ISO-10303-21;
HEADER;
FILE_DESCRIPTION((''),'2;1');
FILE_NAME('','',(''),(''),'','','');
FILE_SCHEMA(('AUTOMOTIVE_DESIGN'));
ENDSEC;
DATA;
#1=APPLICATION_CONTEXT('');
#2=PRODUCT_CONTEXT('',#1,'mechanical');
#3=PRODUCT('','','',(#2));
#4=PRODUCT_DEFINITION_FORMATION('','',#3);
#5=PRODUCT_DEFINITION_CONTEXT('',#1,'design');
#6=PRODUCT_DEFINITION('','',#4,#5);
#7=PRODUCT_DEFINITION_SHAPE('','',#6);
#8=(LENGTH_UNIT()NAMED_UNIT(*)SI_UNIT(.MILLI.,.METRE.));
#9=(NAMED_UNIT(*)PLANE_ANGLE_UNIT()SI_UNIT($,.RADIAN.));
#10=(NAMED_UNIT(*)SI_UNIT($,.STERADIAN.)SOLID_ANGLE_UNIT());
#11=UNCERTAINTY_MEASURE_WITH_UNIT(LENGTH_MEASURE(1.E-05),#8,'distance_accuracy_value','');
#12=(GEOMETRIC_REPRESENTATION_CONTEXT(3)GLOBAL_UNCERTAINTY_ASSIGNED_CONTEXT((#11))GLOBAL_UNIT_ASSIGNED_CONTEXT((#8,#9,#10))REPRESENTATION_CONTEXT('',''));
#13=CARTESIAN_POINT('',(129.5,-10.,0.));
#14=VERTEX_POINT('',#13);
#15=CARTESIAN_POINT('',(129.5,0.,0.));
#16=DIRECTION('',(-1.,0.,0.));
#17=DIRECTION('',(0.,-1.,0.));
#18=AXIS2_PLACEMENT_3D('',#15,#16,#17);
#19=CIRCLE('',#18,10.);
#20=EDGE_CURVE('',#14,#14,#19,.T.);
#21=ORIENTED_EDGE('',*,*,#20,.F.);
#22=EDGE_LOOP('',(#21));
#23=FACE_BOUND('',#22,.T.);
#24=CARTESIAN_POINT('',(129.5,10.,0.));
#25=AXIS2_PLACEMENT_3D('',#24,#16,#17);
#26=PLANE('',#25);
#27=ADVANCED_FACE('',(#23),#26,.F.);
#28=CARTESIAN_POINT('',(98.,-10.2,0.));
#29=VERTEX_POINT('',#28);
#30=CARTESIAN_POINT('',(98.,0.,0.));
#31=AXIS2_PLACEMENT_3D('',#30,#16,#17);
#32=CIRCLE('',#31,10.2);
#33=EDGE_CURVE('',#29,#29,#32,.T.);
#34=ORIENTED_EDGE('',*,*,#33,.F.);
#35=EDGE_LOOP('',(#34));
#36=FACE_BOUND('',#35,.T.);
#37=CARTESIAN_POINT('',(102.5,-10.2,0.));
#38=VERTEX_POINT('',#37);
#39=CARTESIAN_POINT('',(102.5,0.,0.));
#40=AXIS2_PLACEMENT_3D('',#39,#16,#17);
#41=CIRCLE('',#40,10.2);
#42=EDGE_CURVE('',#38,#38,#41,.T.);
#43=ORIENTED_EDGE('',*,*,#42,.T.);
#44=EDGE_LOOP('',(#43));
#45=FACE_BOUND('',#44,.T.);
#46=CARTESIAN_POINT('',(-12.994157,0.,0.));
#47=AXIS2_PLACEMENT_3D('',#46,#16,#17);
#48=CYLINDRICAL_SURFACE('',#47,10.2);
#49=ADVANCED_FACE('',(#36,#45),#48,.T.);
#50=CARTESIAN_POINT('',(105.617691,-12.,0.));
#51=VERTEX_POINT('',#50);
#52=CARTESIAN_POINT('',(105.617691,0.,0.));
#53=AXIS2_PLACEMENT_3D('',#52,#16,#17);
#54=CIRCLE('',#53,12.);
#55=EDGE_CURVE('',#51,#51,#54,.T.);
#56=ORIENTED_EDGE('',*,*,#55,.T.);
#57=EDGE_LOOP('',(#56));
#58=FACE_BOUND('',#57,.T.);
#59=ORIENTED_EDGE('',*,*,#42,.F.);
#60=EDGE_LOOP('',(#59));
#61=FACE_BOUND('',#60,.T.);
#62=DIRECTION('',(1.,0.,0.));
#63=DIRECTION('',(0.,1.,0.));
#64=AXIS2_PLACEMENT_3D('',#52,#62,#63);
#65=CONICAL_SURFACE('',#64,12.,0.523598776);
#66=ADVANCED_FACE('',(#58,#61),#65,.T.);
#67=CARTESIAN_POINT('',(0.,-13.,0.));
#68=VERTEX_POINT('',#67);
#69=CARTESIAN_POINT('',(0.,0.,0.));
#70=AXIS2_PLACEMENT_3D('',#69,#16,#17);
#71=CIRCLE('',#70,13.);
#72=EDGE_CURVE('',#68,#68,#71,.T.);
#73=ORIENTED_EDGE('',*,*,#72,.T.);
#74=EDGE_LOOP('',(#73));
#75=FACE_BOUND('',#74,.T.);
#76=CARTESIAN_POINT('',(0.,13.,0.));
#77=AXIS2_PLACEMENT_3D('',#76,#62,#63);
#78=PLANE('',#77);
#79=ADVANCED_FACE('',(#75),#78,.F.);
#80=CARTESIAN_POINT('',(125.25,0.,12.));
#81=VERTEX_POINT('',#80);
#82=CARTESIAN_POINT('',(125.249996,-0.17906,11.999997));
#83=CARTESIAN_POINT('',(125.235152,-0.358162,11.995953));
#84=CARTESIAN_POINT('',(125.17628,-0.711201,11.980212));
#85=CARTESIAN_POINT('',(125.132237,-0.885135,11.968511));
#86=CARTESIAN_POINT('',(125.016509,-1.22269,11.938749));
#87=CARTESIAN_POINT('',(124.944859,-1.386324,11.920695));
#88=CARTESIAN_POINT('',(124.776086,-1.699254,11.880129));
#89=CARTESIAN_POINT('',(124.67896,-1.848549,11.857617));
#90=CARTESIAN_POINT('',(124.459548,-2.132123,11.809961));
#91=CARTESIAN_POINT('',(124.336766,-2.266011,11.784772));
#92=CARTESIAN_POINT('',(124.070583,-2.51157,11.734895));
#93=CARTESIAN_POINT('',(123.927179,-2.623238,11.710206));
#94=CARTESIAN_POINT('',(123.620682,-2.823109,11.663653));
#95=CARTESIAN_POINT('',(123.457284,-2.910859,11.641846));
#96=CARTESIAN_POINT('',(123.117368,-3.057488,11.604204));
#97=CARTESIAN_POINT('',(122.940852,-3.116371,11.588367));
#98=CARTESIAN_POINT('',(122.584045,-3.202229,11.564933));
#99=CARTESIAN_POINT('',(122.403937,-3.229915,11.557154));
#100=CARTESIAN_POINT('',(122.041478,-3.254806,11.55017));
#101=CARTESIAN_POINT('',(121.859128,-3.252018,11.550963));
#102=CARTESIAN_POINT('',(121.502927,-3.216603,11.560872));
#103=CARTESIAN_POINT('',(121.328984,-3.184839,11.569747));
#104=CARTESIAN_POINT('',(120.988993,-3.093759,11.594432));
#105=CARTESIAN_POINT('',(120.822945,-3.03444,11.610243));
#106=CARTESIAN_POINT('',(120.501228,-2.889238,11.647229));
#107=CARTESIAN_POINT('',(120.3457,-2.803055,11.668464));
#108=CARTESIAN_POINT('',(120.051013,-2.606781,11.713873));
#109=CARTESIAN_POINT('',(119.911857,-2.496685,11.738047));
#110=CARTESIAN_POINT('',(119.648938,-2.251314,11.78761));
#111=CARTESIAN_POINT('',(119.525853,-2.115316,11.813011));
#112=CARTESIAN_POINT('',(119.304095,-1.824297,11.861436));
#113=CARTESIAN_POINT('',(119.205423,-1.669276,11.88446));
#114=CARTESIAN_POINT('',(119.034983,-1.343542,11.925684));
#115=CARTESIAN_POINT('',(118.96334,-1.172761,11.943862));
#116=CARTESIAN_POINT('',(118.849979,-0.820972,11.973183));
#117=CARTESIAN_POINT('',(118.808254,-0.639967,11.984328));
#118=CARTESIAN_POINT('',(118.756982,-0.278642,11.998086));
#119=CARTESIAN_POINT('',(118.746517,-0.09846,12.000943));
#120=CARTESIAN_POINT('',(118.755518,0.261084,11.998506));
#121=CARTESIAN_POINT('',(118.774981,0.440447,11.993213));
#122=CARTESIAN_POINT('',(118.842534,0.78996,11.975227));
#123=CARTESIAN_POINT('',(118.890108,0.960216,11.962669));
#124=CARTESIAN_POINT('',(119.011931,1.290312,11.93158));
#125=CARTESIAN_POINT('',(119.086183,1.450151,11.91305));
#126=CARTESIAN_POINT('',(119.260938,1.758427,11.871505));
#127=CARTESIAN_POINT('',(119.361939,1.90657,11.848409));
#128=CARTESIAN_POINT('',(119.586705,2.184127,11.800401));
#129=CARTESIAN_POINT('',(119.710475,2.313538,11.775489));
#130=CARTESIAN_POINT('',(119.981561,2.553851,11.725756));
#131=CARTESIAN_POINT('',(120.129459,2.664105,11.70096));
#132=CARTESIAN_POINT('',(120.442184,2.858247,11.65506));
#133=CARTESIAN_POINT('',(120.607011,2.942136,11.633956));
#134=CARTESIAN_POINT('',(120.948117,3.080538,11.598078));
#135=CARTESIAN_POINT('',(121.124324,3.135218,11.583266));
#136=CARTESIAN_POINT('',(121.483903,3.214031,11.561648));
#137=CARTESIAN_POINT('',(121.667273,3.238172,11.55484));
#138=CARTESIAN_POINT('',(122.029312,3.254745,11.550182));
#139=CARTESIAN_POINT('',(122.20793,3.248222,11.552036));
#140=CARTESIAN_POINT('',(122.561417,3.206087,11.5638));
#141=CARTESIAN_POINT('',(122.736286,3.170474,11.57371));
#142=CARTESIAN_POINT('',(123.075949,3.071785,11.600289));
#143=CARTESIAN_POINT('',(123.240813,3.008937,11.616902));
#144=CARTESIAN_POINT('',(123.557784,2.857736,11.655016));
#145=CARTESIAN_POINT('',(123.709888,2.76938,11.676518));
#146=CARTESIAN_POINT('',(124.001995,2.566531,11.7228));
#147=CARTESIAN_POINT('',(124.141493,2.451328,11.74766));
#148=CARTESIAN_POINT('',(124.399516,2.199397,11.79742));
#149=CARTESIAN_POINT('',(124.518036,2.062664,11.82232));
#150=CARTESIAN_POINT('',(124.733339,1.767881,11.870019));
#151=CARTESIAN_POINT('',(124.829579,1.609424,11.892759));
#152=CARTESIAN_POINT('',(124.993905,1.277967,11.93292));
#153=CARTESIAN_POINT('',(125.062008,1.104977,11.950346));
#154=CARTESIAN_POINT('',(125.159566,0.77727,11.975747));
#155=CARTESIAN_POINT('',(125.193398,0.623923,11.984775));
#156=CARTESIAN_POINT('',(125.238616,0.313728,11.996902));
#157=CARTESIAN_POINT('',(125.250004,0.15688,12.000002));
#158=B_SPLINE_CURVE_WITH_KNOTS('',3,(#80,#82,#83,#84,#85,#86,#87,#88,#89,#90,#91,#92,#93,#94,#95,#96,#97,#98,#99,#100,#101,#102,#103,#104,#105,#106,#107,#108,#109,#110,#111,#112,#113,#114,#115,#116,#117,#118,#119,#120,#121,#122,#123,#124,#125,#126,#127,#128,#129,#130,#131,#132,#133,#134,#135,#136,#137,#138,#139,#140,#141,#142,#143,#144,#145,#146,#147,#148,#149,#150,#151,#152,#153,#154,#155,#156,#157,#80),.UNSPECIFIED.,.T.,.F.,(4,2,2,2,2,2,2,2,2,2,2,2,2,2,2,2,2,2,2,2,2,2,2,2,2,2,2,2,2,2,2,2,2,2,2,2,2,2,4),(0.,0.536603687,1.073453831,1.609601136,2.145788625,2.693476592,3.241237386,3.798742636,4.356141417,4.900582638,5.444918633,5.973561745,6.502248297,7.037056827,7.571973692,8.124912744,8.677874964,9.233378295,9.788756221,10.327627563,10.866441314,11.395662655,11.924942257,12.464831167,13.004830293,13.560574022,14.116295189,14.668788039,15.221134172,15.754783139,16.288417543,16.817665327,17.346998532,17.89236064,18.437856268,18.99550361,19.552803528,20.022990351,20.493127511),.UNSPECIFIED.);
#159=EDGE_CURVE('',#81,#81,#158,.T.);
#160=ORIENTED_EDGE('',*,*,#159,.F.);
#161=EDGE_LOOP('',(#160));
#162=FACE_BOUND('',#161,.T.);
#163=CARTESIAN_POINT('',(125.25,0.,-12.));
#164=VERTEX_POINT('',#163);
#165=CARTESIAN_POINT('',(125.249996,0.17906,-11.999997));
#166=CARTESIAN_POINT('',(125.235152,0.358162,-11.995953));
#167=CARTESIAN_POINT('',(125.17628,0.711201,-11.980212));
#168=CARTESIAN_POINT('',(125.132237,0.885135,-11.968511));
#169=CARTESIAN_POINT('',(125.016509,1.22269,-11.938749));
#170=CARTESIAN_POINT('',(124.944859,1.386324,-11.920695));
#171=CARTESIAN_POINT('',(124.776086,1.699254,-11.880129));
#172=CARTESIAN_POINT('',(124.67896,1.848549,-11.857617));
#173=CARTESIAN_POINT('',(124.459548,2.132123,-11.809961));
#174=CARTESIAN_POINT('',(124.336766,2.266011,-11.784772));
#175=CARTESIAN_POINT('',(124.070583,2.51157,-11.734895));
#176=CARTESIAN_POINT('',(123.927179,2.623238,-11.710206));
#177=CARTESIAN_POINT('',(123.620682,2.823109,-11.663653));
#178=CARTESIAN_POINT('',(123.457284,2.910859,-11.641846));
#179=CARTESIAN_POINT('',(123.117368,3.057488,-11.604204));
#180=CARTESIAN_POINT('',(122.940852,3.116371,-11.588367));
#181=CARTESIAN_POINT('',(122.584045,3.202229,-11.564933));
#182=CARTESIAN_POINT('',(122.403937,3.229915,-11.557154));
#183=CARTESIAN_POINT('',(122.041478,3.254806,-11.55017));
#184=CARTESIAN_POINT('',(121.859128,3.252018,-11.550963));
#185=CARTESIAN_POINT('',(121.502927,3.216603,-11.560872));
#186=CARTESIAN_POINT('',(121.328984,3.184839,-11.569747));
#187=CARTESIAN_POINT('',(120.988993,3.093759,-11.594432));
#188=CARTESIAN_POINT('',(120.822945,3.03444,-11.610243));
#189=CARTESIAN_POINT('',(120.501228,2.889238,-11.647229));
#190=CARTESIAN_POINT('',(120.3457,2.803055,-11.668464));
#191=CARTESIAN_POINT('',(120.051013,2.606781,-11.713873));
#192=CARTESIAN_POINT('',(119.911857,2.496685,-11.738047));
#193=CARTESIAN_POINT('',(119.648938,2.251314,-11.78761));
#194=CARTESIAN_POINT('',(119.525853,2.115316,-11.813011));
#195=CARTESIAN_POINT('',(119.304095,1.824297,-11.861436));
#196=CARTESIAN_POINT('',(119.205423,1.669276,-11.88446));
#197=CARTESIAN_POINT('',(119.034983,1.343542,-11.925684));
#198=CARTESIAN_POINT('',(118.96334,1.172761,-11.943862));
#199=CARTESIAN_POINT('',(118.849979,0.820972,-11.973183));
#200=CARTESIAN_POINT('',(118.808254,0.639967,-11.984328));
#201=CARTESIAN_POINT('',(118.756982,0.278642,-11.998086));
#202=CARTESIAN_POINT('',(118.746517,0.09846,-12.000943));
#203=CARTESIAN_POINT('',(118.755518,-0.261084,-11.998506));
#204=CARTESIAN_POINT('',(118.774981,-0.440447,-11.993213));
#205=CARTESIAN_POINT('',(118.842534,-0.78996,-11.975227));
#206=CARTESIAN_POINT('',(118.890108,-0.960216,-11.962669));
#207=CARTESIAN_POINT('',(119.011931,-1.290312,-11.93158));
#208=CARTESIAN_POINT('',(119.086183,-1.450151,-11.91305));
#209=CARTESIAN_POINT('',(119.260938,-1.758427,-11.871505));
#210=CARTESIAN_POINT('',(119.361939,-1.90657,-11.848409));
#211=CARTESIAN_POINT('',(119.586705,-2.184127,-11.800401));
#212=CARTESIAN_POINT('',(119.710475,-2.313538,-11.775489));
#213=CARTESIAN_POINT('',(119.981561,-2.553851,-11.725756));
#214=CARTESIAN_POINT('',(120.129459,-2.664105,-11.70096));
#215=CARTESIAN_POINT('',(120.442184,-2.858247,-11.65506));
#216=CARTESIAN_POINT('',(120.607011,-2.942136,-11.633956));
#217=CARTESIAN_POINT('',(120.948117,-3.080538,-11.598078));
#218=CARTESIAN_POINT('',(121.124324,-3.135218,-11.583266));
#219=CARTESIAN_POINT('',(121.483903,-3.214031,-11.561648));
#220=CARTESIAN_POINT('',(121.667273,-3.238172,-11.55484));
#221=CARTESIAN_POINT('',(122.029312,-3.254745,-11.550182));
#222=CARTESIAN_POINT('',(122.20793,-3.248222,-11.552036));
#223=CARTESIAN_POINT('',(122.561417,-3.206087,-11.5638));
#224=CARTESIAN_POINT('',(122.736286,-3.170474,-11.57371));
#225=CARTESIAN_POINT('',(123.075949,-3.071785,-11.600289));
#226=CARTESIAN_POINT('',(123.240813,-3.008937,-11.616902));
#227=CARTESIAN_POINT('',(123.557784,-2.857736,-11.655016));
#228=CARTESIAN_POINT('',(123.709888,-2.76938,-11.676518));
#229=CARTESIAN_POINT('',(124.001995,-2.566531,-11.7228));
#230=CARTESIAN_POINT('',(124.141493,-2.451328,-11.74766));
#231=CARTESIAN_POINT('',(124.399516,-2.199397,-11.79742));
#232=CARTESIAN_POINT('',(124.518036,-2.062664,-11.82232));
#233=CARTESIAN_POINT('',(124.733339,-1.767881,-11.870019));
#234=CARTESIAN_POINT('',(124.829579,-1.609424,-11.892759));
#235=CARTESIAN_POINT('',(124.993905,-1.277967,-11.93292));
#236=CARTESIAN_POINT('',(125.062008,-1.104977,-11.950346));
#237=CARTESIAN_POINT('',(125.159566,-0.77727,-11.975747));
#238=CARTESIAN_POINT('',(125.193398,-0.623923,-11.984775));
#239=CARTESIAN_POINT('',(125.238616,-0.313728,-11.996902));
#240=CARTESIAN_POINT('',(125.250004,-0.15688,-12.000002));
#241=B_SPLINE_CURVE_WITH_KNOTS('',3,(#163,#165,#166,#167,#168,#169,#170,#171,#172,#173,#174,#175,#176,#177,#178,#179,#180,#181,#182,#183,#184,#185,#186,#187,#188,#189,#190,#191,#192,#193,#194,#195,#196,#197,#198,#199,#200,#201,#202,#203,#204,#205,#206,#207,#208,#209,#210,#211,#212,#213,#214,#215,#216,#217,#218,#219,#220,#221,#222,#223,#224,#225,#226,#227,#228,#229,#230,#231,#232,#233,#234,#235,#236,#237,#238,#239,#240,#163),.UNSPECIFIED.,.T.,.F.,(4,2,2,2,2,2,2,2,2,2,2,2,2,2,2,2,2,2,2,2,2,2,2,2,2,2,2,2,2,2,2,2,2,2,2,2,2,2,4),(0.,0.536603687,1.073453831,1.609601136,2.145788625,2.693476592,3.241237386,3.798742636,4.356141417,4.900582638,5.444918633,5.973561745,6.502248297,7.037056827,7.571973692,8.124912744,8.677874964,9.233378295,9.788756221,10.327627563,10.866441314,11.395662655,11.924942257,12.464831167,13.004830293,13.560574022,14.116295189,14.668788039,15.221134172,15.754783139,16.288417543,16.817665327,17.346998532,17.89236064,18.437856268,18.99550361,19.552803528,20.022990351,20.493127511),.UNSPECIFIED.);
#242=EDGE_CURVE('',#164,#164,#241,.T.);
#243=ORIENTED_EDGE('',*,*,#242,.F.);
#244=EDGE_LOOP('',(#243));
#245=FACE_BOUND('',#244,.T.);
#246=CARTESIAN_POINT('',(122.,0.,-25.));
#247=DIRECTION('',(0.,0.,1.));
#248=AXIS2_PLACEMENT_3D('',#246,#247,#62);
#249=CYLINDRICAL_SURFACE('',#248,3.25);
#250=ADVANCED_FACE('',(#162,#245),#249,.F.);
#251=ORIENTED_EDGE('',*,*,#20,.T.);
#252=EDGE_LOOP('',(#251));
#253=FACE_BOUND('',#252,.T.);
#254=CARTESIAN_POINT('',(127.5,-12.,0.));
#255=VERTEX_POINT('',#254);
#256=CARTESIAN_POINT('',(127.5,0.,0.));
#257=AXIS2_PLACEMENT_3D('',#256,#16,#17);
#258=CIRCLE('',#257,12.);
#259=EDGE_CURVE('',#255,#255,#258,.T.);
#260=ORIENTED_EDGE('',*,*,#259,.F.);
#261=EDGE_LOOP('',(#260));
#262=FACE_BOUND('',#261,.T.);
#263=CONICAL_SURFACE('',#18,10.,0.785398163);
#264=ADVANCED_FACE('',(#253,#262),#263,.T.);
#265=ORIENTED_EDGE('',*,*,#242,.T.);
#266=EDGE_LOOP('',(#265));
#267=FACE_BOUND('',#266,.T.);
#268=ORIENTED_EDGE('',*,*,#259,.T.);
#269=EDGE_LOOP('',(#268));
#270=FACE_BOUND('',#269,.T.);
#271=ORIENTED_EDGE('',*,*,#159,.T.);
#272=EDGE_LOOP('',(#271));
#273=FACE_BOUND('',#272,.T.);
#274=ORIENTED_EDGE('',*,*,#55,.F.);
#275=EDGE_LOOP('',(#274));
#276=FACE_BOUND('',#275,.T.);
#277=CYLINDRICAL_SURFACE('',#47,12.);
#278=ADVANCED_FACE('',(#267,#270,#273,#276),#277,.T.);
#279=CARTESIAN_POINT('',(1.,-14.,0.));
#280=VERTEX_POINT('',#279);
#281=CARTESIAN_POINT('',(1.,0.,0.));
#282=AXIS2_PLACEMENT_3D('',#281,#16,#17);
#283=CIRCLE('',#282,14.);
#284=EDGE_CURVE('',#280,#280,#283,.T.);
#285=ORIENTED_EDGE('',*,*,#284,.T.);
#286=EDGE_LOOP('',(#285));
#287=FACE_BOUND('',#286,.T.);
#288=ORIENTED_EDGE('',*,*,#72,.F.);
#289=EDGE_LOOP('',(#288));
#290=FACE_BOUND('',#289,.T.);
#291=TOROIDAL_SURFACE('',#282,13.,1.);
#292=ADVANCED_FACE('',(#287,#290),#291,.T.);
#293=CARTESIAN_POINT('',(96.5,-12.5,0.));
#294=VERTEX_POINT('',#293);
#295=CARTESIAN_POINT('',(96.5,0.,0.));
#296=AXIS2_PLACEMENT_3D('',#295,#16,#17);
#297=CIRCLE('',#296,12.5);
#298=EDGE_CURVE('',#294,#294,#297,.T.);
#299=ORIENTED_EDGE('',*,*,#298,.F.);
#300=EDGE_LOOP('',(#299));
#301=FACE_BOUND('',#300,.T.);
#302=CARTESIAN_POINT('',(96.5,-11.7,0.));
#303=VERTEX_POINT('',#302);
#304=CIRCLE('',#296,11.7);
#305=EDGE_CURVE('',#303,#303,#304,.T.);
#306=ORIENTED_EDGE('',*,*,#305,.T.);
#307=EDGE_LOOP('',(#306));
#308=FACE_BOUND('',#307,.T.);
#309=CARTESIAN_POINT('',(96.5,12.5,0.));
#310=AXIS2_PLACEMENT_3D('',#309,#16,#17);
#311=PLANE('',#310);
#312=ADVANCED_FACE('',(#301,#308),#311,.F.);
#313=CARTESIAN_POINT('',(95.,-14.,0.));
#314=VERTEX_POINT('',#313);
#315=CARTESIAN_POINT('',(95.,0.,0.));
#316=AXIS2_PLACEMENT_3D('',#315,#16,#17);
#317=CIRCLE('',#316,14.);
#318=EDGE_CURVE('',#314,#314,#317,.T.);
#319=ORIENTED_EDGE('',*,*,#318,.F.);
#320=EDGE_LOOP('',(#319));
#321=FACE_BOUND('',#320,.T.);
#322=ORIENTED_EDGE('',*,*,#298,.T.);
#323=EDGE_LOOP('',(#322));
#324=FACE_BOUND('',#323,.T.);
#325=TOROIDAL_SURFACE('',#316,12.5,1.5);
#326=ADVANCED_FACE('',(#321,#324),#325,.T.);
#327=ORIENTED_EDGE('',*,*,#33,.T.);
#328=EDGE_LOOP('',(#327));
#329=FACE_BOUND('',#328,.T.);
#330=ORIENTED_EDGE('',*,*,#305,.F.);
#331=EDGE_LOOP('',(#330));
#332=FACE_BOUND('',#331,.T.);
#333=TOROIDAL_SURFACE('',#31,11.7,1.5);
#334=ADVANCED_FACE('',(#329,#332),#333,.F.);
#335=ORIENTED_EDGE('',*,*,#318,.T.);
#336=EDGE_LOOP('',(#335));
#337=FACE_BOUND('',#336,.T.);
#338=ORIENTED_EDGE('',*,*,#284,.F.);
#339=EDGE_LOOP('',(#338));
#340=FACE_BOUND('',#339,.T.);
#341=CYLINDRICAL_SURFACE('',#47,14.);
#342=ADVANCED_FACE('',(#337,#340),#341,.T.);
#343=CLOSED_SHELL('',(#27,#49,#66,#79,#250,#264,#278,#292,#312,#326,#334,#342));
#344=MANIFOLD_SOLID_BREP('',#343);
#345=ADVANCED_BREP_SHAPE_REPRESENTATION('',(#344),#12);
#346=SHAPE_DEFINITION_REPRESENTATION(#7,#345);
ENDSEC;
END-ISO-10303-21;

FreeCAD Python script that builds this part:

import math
import FreeCAD as App
import Part
import Sketcher
Q = App.Units.Quantity

doc = App.newDocument("Part")
body = doc.addObject("PartDesign::Body", "Body")

sketch1 = doc.addObject("Sketcher::SketchObject", "Sketch")
body.addObject(sketch1)
sketch1.AttachmentSupport = (doc.XY_Plane, [""])
sketch1.MapMode = "FlatFace"
sketch1.addGeometry([
    Part.LineSegment(App.Vector(95, 14, 0), App.Vector(1, 14, 0)),
    Part.ArcOfCircle(Part.Circle(App.Vector(1, 13, 0), App.Vector(0, 0, 1), 1), math.radians(90), math.radians(180)),
    Part.LineSegment(App.Vector(0, 13, 0), App.Vector(0, 0, 0)),
    Part.LineSegment(App.Vector(0, 0, 0), App.Vector(129.5, 0, 0)),
    Part.LineSegment(App.Vector(129.5, 0, 0), App.Vector(129.5, 10, 0)),
    Part.LineSegment(App.Vector(129.5, 10, 0), App.Vector(127.5, 12, 0)),
    Part.LineSegment(App.Vector(127.5, 12, 0), App.Vector(105.6, 12, 0)),
    Part.LineSegment(App.Vector(105.6, 12, 0), App.Vector(102.5, 10.2, 0)),
    Part.LineSegment(App.Vector(102.5, 10.2, 0), App.Vector(98, 10.2, 0)),
    Part.ArcOfCircle(Part.Circle(App.Vector(98, 11.7, 0), App.Vector(0, 0, 1), 1.5), math.radians(180), math.radians(270)),
    Part.LineSegment(App.Vector(96.5, 11.7, 0), App.Vector(96.5, 12.5, 0)),
    Part.ArcOfCircle(Part.Circle(App.Vector(95, 12.5, 0), App.Vector(0, 0, 1), 1.5), math.radians(0), math.radians(90)),
], False)
sketch1.addConstraint([
    Sketcher.Constraint("Tangent", 0, 2, 1, 1),
    Sketcher.Constraint("Tangent", 1, 2, 2, 1),
    Sketcher.Constraint("Coincident", 2, 2, 3, 1),
    Sketcher.Constraint("Coincident", 3, 2, 4, 1),
    Sketcher.Constraint("Coincident", 4, 2, 5, 1),
    Sketcher.Constraint("Coincident", 5, 2, 6, 1),
    Sketcher.Constraint("Coincident", 6, 2, 7, 1),
    Sketcher.Constraint("Coincident", 7, 2, 8, 1),
    Sketcher.Constraint("Tangent", 8, 2, 9, 2),
    Sketcher.Constraint("Tangent", 9, 1, 10, 1),
    Sketcher.Constraint("Tangent", 10, 2, 11, 1),
    Sketcher.Constraint("Tangent", 11, 2, 0, 1),
    Sketcher.Constraint("Horizontal", 0),
    Sketcher.Constraint("Vertical", 2),
    Sketcher.Constraint("Horizontal", 3),
    Sketcher.Constraint("Vertical", 4),
    Sketcher.Constraint("Horizontal", 6),
    Sketcher.Constraint("Horizontal", 8),
    Sketcher.Constraint("Vertical", 10),
    Sketcher.Constraint("Coincident", 2, 2, -1, 1),
    Sketcher.Constraint("Equal", 9, 11),
    Sketcher.Constraint("Radius", 1, Q("1 mm")),
    Sketcher.Constraint("Radius", 9, Q("1.5 mm")),
    Sketcher.Constraint("DistanceX", 0, 2, 0, 1, Q("94 mm")),
    Sketcher.Constraint("DistanceY", 2, 2, 2, 1, Q("13 mm")),
    Sketcher.Constraint("DistanceY", 4, 1, 4, 2, Q("10 mm")),
    Sketcher.Constraint("Angle", 5, Q("135 deg")),
    Sketcher.Constraint("Angle", 7, Q("-150 deg")),
    Sketcher.Constraint("DistanceX", 3, 1, 3, 2, Q("129.5 mm")),
    Sketcher.Constraint("DistanceX", 8, 2, 8, 1, Q("4.5 mm")),
    Sketcher.Constraint("DistanceY", 10, 1, 10, 2, Q("0.8 mm")),
    Sketcher.Constraint("DistanceY", -1, 1, 5, 2, Q("12 mm")),
])
revolution = doc.addObject("PartDesign::Revolution", "Revolution")
body.addObject(revolution)
revolution.Profile = sketch1
revolution.ReferenceAxis = (sketch1, ["H_Axis"])
revolution.Angle = 360

sketch2 = doc.addObject("Sketcher::SketchObject", "Sketch001")
body.addObject(sketch2)
sketch2.AttachmentSupport = (doc.XY_Plane, [""])
sketch2.MapMode = "FlatFace"
sketch2.addGeometry(Part.Circle(App.Vector(122, 0, 0), App.Vector(0, 0, 1), 3.2), False)
sketch2.addConstraint([
    Sketcher.Constraint("PointOnObject", 0, 3, -1),
    Sketcher.Constraint("Diameter", 0, Q("6.5 mm")),
    Sketcher.Constraint("DistanceX", -1, 1, 0, 3, Q("122 mm")),
])
pocket1 = doc.addObject("PartDesign::Pocket", "Pocket")
body.addObject(pocket1)
pocket1.Profile = sketch2
pocket1.Length = 50
pocket1.Midplane = True

doc.recompute()
